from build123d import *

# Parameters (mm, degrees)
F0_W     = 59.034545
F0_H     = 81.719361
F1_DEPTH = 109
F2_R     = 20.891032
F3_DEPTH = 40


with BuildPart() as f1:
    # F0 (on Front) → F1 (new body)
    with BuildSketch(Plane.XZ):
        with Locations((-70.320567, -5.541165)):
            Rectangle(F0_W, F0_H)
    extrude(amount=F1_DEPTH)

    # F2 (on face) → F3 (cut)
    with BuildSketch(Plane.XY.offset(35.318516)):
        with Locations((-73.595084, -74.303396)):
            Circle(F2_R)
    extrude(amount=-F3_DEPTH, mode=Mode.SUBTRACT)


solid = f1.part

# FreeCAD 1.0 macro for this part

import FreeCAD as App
import Part
import Sketcher
from FreeCAD import Vector


def add_polygon(sketch, points):
    """Adds a closed chain of lines whose ends are joined by coincident constraints."""
    first, n = sketch.GeometryCount, len(points)
    for a, b in zip(points, points[1:] + points[:1]):
        sketch.addGeometry(Part.LineSegment(App.Vector(*a, 0), App.Vector(*b, 0)), False)
    for i in range(n):
        sketch.addConstraint(Sketcher.Constraint("Coincident", first + i, 2, first + (i + 1) % n, 1))

doc = App.newDocument("Part")
params = doc.addObject("Spreadsheet::Sheet", "Params")
for row, (alias, value) in enumerate([
    ("pad1_length", "109 mm"),
    ("pocket1_length", "40 mm"),
], start=1):
    params.set(f"A{row}", alias)
    params.set(f"B{row}", "=" + value)
    params.setAlias(f"B{row}", alias)

body = doc.addObject("PartDesign::Body", "Body")

sketch1 = body.newObject("Sketcher::SketchObject", "Sketch")
sketch1.AttachmentSupport = (doc.getObject("XZ_Plane"), [""])
sketch1.MapMode = "FlatFace"
add_polygon(sketch1, [(-100, 35), (-100, -46), (-41, -46), (-41, 35)])
sketch1.addConstraint(Sketcher.Constraint("Vertical", 0))
sketch1.addConstraint(Sketcher.Constraint("Horizontal", 1))
sketch1.addConstraint(Sketcher.Constraint("Vertical", 2))
sketch1.addConstraint(Sketcher.Constraint("Horizontal", 3))
sketch1.addConstraint(Sketcher.Constraint("DistanceY", 0, 2, 0, 1, 81.719361))
sketch1.addConstraint(Sketcher.Constraint("DistanceX", 1, 1, 1, 2, 59.034545))
sketch1.addConstraint(Sketcher.Constraint("DistanceX", 0, 2, -1, 1, 99.83784))
sketch1.addConstraint(Sketcher.Constraint("DistanceY", 0, 2, -1, 1, 46.400846))
pad1 = body.newObject("PartDesign::Pad", "Pad")
pad1.Profile = sketch1
pad1.setExpression("Length", "Params.pad1_length")

sketch2 = body.newObject("Sketcher::SketchObject", "Sketch001")
sketch2.AttachmentSupport = (doc.getObject("XY_Plane"), [""])
sketch2.MapMode = "FlatFace"
sketch2.AttachmentOffset = App.Placement(Vector(0, 0, 35.318516), App.Rotation())
sketch2.addGeometry(Part.Circle(Vector(-74, -74, 0), Vector(0, 0, 1), 21), False)
sketch2.addConstraint(Sketcher.Constraint("Diameter", 0, 41.782064))
sketch2.addConstraint(Sketcher.Constraint("DistanceX", 0, 3, -1, 1, 73.595084))
sketch2.addConstraint(Sketcher.Constraint("DistanceY", 0, 3, -1, 1, 74.303396))
pocket1 = body.newObject("PartDesign::Pocket", "Pocket")
pocket1.Profile = sketch2
pocket1.setExpression("Length", "Params.pocket1_length")

doc.recompute()
